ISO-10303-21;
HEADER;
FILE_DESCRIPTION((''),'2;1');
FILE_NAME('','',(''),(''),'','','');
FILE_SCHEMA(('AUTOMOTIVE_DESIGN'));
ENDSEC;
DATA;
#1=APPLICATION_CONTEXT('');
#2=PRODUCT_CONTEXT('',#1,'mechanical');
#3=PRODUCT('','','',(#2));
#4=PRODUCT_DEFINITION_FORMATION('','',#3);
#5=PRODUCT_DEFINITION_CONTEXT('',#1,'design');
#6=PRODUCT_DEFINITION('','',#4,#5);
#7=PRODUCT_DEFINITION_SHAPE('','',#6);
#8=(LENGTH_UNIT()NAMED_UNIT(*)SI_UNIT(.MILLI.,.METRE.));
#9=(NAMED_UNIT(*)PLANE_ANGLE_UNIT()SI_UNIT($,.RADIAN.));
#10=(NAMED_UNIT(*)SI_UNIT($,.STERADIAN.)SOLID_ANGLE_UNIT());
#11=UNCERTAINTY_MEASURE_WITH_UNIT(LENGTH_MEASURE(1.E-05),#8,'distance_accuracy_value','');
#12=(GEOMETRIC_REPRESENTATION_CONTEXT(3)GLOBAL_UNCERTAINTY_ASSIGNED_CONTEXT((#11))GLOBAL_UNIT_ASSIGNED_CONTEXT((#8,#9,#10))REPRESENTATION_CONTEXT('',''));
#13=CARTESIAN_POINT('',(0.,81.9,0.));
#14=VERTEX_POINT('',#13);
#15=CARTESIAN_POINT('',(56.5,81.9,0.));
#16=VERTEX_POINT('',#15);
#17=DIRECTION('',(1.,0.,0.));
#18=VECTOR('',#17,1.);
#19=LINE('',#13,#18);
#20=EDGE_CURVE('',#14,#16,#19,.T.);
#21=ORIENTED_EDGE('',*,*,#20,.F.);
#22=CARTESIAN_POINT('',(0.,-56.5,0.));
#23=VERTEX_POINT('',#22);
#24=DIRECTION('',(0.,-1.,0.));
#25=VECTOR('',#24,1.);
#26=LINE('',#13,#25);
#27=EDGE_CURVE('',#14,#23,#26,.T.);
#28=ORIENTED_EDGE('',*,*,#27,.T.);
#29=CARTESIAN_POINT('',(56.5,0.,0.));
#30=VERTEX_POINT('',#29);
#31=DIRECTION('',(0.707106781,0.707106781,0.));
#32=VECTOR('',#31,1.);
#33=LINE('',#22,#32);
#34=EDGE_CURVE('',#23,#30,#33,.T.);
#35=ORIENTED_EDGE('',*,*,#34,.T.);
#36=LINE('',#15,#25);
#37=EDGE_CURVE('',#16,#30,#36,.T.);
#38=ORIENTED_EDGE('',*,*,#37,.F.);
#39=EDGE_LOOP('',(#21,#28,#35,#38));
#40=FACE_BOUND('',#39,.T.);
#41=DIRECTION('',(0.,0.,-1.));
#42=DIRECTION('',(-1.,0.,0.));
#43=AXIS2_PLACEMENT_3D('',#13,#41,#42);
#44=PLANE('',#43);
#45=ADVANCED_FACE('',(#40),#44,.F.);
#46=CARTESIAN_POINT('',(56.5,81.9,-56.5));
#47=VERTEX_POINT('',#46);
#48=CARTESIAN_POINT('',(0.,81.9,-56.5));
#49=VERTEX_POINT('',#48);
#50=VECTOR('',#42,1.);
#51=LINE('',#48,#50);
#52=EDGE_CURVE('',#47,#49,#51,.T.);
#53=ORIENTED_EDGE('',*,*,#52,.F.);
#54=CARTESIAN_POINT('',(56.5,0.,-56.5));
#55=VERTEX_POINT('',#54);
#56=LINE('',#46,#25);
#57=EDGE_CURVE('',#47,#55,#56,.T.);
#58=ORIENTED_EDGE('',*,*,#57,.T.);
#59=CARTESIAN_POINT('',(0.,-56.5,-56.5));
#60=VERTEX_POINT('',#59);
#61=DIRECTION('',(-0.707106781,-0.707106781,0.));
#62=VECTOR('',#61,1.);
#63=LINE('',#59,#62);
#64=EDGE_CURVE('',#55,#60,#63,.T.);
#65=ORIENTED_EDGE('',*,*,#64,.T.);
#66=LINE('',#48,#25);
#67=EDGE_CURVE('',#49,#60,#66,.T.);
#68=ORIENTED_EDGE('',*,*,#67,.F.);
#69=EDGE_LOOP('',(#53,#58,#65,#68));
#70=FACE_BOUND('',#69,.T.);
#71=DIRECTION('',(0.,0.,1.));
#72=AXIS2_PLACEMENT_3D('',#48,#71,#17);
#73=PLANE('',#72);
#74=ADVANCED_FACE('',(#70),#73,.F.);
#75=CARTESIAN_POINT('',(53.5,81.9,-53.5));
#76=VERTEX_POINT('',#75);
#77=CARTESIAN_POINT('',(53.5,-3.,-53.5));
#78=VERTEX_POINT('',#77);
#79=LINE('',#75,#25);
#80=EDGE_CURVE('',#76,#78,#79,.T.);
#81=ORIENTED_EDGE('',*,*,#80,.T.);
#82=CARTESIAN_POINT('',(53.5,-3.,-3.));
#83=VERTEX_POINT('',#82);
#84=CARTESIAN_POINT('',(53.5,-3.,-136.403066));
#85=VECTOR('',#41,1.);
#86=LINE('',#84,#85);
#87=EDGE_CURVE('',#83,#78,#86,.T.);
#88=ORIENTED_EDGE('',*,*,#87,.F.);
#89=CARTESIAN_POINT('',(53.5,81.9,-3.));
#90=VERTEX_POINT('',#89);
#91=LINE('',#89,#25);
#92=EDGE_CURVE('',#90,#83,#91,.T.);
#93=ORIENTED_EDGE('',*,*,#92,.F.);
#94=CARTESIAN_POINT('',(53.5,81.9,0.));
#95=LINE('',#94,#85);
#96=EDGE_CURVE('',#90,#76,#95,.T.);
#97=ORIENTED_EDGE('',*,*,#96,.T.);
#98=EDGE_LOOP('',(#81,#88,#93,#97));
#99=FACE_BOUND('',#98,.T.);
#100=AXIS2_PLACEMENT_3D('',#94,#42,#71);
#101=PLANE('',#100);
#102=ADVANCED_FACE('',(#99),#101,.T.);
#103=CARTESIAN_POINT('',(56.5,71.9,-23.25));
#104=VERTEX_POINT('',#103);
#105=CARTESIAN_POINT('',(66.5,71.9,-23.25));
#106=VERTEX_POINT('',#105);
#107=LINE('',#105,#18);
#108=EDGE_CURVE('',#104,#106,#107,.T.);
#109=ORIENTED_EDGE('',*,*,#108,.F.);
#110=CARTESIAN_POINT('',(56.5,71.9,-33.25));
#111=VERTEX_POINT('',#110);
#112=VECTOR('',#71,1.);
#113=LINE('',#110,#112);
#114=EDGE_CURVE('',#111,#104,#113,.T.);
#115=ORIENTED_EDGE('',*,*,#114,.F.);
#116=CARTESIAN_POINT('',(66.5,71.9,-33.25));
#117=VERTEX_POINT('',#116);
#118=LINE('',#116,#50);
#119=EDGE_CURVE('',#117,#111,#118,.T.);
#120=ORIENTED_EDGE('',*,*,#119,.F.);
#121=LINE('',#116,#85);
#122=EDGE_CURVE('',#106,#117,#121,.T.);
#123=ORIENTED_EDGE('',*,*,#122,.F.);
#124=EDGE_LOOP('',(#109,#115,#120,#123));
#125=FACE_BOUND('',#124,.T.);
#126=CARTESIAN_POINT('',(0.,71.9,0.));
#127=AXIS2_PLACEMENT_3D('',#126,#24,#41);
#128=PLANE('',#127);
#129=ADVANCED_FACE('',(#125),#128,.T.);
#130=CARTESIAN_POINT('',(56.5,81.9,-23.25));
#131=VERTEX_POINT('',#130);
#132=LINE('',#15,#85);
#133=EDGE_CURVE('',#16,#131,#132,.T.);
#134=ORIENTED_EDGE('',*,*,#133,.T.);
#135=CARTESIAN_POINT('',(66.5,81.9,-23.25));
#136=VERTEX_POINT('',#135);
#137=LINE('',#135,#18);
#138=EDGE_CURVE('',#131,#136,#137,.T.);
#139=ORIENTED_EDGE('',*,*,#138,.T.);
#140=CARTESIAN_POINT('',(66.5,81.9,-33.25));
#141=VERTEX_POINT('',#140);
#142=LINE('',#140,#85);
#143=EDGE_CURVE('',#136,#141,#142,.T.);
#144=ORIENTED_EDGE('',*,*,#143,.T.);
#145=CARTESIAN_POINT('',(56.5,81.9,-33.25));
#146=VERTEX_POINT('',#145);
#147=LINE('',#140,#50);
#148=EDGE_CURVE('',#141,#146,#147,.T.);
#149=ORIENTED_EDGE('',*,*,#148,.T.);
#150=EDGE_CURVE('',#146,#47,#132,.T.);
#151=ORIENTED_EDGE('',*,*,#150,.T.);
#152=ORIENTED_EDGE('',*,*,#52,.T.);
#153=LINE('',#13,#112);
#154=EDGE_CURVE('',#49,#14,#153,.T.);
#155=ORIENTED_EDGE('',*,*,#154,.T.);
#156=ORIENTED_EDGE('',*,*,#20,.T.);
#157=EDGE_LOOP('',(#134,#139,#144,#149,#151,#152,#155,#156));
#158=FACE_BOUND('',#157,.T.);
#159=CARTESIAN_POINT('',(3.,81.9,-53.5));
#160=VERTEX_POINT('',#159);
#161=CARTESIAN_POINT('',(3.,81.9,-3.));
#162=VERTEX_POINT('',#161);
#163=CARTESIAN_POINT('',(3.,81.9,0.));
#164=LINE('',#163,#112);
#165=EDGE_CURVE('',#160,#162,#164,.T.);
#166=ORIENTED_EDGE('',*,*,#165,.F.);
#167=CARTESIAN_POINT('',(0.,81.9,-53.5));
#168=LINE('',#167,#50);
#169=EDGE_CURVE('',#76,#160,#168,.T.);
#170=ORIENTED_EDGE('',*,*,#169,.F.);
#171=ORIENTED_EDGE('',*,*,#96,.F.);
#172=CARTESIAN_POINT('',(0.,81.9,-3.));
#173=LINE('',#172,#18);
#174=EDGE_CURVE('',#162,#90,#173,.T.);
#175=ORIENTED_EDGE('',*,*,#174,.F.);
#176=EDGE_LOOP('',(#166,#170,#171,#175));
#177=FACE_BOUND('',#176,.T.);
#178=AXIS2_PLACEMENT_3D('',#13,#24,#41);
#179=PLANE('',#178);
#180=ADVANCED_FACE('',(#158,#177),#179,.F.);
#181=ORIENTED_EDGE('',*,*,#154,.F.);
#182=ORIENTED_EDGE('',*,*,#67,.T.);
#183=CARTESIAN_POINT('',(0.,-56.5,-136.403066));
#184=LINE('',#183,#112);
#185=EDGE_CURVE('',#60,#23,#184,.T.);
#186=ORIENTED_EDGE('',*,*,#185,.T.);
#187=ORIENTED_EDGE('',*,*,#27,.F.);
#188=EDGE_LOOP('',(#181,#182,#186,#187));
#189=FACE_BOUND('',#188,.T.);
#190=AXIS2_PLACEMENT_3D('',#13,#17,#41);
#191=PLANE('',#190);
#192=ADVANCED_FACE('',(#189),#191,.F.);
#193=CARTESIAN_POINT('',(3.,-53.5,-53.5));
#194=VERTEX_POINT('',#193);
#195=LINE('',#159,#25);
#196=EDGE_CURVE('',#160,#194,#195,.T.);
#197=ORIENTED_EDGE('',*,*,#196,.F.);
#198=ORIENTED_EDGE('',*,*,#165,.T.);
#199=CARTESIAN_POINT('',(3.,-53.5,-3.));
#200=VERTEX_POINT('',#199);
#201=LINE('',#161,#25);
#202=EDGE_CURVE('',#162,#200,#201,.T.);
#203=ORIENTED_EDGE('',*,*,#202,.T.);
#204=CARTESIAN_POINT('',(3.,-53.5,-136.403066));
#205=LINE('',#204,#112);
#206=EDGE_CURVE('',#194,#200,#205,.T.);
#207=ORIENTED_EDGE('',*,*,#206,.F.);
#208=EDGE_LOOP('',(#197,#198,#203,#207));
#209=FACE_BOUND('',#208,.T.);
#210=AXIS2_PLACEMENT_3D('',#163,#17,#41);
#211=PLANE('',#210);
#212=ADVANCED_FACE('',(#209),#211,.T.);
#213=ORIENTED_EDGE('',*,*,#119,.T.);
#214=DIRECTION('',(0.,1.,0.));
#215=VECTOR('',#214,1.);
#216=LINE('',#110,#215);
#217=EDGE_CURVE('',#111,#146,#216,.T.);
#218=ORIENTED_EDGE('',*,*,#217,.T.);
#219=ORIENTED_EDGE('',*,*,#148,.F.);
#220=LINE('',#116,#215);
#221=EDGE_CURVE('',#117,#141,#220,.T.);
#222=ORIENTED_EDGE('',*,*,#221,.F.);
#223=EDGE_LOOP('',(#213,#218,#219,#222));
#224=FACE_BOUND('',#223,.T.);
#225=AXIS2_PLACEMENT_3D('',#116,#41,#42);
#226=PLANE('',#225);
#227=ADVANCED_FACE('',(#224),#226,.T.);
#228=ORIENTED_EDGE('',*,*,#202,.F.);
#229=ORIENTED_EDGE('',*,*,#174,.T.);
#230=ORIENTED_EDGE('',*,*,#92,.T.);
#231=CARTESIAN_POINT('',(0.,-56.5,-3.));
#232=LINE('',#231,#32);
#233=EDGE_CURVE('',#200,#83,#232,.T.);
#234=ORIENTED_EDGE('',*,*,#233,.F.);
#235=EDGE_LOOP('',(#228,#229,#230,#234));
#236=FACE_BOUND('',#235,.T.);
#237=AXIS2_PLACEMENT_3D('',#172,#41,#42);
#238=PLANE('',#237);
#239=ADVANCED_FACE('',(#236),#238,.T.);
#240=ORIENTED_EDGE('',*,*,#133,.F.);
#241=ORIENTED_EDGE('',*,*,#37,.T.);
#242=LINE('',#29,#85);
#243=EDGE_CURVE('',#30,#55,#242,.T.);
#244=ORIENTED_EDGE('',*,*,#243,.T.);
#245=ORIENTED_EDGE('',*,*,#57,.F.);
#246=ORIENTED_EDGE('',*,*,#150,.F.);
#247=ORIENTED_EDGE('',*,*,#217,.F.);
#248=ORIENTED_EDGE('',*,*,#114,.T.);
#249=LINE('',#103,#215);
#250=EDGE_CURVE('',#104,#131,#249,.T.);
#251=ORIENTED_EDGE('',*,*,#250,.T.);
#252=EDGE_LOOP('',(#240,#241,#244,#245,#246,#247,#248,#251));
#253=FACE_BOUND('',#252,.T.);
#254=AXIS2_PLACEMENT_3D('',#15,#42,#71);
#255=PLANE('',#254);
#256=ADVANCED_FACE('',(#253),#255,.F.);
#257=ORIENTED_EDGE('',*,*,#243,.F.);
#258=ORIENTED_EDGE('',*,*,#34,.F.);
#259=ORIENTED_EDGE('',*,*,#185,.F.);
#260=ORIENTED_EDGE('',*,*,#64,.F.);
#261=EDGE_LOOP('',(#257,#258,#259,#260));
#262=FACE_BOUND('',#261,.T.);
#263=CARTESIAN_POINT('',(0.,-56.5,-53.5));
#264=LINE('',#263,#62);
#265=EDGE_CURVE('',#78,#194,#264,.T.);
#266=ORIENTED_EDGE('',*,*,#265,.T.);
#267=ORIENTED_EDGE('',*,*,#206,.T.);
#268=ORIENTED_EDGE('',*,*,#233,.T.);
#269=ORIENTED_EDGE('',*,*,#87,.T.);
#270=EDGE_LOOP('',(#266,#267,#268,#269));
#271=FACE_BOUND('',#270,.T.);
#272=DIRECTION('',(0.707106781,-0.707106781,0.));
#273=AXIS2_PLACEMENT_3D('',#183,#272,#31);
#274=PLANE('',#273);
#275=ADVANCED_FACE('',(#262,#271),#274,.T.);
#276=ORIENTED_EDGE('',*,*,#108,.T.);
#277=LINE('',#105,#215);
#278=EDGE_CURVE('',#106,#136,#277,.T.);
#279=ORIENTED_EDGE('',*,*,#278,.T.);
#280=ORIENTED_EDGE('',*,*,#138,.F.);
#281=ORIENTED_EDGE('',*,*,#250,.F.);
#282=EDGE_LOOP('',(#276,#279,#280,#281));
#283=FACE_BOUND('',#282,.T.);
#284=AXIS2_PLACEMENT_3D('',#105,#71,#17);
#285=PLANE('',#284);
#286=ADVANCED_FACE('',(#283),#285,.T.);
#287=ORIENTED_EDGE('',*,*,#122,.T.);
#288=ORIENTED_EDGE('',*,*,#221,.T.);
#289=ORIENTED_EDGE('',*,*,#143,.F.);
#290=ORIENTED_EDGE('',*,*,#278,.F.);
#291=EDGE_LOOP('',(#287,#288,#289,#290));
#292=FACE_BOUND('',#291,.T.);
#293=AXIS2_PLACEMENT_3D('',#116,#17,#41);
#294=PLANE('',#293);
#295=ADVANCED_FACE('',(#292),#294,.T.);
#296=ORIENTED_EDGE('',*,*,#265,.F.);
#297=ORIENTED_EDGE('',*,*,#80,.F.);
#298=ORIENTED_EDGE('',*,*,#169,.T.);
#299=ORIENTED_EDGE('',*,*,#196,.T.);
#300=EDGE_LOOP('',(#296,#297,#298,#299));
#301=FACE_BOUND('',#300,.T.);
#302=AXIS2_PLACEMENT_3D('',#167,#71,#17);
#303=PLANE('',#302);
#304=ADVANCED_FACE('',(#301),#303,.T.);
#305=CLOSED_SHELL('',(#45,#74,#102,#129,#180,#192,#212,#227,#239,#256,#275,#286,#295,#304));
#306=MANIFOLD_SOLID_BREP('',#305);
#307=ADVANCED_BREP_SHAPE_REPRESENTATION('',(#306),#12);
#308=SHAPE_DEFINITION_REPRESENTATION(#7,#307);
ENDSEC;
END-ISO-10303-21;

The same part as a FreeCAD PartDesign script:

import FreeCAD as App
import Part
import Sketcher
from FreeCAD import Vector


def faces_at(feature, points):
    """Names of the faces that lie closest to the given points."""
    faces = feature.Shape.Faces
    near = lambda p: min(range(len(faces)), key=lambda i: faces[i].distToShape(Part.Vertex(*p))[0])
    return sorted({f"Face{near(p) + 1}" for p in points})


def add_polygon(sketch, points):
    """Adds a closed chain of lines whose ends are joined by coincident constraints."""
    first, n = sketch.GeometryCount, len(points)
    for a, b in zip(points, points[1:] + points[:1]):
        sketch.addGeometry(Part.LineSegment(App.Vector(*a, 0), App.Vector(*b, 0)), False)
    for i in range(n):
        sketch.addConstraint(Sketcher.Constraint("Coincident", first + i, 2, first + (i + 1) % n, 1))

doc = App.newDocument("Part")
params = doc.addObject("Spreadsheet::Sheet", "Params")
for row, (alias, value) in enumerate([
    ("sketch1_width", "56.5 mm"),
    ("pad1_length", "81.9 mm"),
    ("sketch2_width", "56.5 mm"),
    ("pad2_length", "56.5 mm"),
    ("thickness_wall", "3 mm"),
    ("sketch3_width", "10 mm"),
    ("pad3_length", "10 mm"),
], start=1):
    params.set(f"A{row}", alias)
    params.set(f"B{row}", "=" + value)
    params.setAlias(f"B{row}", alias)

body = doc.addObject("PartDesign::Body", "Body")

# Sketch on XZ plane
sketch1 = body.newObject("Sketcher::SketchObject", "Sketch")
sketch1.AttachmentSupport = (doc.getObject("XZ_Plane"), [""])
sketch1.MapMode = "FlatFace"
add_polygon(sketch1, [(0, -56), (0, 0), (56, 0), (56, -56)])  # lines 0-3
sketch1.addConstraint([
    Sketcher.Constraint("Vertical", 0),
    Sketcher.Constraint("Horizontal", 1),
    Sketcher.Constraint("Vertical", 2),
    Sketcher.Constraint("Horizontal", 3),
    Sketcher.Constraint("Coincident", 0, 2, -1, 1),
    Sketcher.Constraint("Equal", 3, 0),
    Sketcher.Constraint("DistanceX", 1, 1, 1, 2, 56.5),
])
sketch1.setExpression("Constraints[10]", "Params.sketch1_width")
pad1 = body.newObject("PartDesign::Pad", "Pad")
pad1.Profile = sketch1
pad1.setExpression("Length", "Params.pad1_length")
pad1.Reversed = True

# Sketch on XY plane
sketch2 = body.newObject("Sketcher::SketchObject", "Sketch001")
sketch2.AttachmentSupport = (doc.getObject("XY_Plane"), [""])
sketch2.MapMode = "FlatFace"
add_polygon(sketch2, [(0, 0), (0, -56), (56, 0)])  # lines 0-2
sketch2.addConstraint([
    Sketcher.Constraint("Vertical", 0),
    Sketcher.Constraint("Horizontal", 2),
    Sketcher.Constraint("Coincident", 2, 2, -1, 1),
    Sketcher.Constraint("Equal", 2, 0),
    Sketcher.Constraint("DistanceX", 2, 2, 2, 1, 56.5),
])
sketch2.setExpression("Constraints[7]", "Params.sketch2_width")
pad2 = body.newObject("PartDesign::Pad", "Pad001")
pad2.Profile = sketch2
pad2.setExpression("Length", "Params.pad2_length")
pad2.Reversed = True
doc.recompute()

thickness = body.newObject("PartDesign::Thickness", "Thickness")
thickness.Base = (pad2, faces_at(pad2, [(28.25, 81.9, -28.25), (28.25, -28.25, -28.25)]))
thickness.setExpression("Value", "Params.thickness_wall")
thickness.Reversed = True
thickness.Join = "Intersection"

# Sketch on XZ plane
sketch3 = body.newObject("Sketcher::SketchObject", "Sketch002")
sketch3.AttachmentSupport = (doc.getObject("XZ_Plane"), [""])
sketch3.MapMode = "FlatFace"
sketch3.AttachmentOffset = App.Placement(Vector(0, 0, -81.9), App.Rotation())
add_polygon(sketch3, [(56, -33), (56, -23), (66, -23), (66, -33)])  # lines 0-3
sketch3.addConstraint([
    Sketcher.Constraint("Vertical", 0),
    Sketcher.Constraint("Horizontal", 1),
    Sketcher.Constraint("Vertical", 2),
    Sketcher.Constraint("Horizontal", 3),
    Sketcher.Constraint("Equal", 3, 0),
    Sketcher.Constraint("DistanceX", 1, 1, 1, 2, 10.0),
    Sketcher.Constraint("DistanceX", -1, 1, 0, 2, 56.5),
    Sketcher.Constraint("DistanceY", 0, 2, -1, 1, 23.25),
])
sketch3.setExpression("Constraints[9]", "Params.sketch3_width")
pad3 = body.newObject("PartDesign::Pad", "Pad002")
pad3.Profile = sketch3
pad3.setExpression("Length", "Params.pad3_length")

doc.recompute()
